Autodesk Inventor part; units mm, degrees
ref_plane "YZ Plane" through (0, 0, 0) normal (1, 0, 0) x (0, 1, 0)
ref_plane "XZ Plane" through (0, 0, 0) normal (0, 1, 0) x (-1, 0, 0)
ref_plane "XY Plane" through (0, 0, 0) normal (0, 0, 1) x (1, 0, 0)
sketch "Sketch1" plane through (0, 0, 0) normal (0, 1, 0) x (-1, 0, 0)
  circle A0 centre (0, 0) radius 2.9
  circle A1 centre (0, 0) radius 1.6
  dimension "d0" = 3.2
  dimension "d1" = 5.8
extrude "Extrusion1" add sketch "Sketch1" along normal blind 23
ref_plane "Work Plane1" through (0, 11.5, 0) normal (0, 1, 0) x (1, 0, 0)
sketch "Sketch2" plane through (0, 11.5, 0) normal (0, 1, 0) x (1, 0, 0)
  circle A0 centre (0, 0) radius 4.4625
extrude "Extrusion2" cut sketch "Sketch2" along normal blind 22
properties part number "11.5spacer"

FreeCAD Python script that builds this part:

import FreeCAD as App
import Part
import Sketcher
Q = App.Units.Quantity

doc = App.newDocument("Part")
params = doc.addObject("Spreadsheet::Sheet", "Params")
for row, (alias, value) in enumerate([
    ("sketch1_diameter", "5.8 mm"),
    ("sketch1_diameter2", "3.2 mm"),
    ("pad1_length", "23 mm"),
    ("pocket1_length", "22 mm"),
], start=1):
    params.set(f"A{row}", alias)
    params.set(f"B{row}", "=" + value)
    params.setAlias(f"B{row}", alias)

body = doc.addObject("PartDesign::Body", "Body")

# Sketch on XZ plane
sketch1 = body.newObject("Sketcher::SketchObject", "Sketch")
sketch1.AttachmentSupport = (doc.getObject("XZ_Plane"), [""])
sketch1.MapMode = "FlatFace"
sketch1.addGeometry(Part.Circle(App.Vector(0, 0, 0), App.Vector(0, 0, 1), 2.9), False)
sketch1.addGeometry(Part.Circle(App.Vector(0, 0, 0), App.Vector(0, 0, 1), 1.6), False)
sketch1.addConstraint(Sketcher.Constraint("Coincident", 0, 3, -1, 1))
sketch1.addConstraint(Sketcher.Constraint("Coincident", 1, 3, -1, 1))
sketch1.addConstraint(Sketcher.Constraint("Diameter", 0, Q("5.8 mm")))
sketch1.addConstraint(Sketcher.Constraint("Diameter", 1, Q("3.2 mm")))
sketch1.setExpression("Constraints[2]", "Params.sketch1_diameter")
sketch1.setExpression("Constraints[3]", "Params.sketch1_diameter2")
pad1 = body.newObject("PartDesign::Pad", "Pad")
pad1.Profile = sketch1
pad1.setExpression("Length", "Params.pad1_length")
pad1.Reversed = True

# Sketch on XZ plane
sketch2 = body.newObject("Sketcher::SketchObject", "Sketch001")
sketch2.AttachmentSupport = (doc.getObject("XZ_Plane"), [""])
sketch2.MapMode = "FlatFace"
sketch2.AttachmentOffset = App.Placement(App.Vector(0, 0, -11.5), App.Rotation())
sketch2.addGeometry(Part.Circle(App.Vector(0, 0, 0), App.Vector(0, 0, 1), 4.5), False)
sketch2.addConstraint(Sketcher.Constraint("Coincident", 0, 3, -1, 1))
sketch2.addConstraint(Sketcher.Constraint("Diameter", 0, Q("8.925 mm")))
pocket1 = body.newObject("PartDesign::Pocket", "Pocket")
pocket1.Profile = sketch2
pocket1.setExpression("Length", "Params.pocket1_length")

doc.recompute()
